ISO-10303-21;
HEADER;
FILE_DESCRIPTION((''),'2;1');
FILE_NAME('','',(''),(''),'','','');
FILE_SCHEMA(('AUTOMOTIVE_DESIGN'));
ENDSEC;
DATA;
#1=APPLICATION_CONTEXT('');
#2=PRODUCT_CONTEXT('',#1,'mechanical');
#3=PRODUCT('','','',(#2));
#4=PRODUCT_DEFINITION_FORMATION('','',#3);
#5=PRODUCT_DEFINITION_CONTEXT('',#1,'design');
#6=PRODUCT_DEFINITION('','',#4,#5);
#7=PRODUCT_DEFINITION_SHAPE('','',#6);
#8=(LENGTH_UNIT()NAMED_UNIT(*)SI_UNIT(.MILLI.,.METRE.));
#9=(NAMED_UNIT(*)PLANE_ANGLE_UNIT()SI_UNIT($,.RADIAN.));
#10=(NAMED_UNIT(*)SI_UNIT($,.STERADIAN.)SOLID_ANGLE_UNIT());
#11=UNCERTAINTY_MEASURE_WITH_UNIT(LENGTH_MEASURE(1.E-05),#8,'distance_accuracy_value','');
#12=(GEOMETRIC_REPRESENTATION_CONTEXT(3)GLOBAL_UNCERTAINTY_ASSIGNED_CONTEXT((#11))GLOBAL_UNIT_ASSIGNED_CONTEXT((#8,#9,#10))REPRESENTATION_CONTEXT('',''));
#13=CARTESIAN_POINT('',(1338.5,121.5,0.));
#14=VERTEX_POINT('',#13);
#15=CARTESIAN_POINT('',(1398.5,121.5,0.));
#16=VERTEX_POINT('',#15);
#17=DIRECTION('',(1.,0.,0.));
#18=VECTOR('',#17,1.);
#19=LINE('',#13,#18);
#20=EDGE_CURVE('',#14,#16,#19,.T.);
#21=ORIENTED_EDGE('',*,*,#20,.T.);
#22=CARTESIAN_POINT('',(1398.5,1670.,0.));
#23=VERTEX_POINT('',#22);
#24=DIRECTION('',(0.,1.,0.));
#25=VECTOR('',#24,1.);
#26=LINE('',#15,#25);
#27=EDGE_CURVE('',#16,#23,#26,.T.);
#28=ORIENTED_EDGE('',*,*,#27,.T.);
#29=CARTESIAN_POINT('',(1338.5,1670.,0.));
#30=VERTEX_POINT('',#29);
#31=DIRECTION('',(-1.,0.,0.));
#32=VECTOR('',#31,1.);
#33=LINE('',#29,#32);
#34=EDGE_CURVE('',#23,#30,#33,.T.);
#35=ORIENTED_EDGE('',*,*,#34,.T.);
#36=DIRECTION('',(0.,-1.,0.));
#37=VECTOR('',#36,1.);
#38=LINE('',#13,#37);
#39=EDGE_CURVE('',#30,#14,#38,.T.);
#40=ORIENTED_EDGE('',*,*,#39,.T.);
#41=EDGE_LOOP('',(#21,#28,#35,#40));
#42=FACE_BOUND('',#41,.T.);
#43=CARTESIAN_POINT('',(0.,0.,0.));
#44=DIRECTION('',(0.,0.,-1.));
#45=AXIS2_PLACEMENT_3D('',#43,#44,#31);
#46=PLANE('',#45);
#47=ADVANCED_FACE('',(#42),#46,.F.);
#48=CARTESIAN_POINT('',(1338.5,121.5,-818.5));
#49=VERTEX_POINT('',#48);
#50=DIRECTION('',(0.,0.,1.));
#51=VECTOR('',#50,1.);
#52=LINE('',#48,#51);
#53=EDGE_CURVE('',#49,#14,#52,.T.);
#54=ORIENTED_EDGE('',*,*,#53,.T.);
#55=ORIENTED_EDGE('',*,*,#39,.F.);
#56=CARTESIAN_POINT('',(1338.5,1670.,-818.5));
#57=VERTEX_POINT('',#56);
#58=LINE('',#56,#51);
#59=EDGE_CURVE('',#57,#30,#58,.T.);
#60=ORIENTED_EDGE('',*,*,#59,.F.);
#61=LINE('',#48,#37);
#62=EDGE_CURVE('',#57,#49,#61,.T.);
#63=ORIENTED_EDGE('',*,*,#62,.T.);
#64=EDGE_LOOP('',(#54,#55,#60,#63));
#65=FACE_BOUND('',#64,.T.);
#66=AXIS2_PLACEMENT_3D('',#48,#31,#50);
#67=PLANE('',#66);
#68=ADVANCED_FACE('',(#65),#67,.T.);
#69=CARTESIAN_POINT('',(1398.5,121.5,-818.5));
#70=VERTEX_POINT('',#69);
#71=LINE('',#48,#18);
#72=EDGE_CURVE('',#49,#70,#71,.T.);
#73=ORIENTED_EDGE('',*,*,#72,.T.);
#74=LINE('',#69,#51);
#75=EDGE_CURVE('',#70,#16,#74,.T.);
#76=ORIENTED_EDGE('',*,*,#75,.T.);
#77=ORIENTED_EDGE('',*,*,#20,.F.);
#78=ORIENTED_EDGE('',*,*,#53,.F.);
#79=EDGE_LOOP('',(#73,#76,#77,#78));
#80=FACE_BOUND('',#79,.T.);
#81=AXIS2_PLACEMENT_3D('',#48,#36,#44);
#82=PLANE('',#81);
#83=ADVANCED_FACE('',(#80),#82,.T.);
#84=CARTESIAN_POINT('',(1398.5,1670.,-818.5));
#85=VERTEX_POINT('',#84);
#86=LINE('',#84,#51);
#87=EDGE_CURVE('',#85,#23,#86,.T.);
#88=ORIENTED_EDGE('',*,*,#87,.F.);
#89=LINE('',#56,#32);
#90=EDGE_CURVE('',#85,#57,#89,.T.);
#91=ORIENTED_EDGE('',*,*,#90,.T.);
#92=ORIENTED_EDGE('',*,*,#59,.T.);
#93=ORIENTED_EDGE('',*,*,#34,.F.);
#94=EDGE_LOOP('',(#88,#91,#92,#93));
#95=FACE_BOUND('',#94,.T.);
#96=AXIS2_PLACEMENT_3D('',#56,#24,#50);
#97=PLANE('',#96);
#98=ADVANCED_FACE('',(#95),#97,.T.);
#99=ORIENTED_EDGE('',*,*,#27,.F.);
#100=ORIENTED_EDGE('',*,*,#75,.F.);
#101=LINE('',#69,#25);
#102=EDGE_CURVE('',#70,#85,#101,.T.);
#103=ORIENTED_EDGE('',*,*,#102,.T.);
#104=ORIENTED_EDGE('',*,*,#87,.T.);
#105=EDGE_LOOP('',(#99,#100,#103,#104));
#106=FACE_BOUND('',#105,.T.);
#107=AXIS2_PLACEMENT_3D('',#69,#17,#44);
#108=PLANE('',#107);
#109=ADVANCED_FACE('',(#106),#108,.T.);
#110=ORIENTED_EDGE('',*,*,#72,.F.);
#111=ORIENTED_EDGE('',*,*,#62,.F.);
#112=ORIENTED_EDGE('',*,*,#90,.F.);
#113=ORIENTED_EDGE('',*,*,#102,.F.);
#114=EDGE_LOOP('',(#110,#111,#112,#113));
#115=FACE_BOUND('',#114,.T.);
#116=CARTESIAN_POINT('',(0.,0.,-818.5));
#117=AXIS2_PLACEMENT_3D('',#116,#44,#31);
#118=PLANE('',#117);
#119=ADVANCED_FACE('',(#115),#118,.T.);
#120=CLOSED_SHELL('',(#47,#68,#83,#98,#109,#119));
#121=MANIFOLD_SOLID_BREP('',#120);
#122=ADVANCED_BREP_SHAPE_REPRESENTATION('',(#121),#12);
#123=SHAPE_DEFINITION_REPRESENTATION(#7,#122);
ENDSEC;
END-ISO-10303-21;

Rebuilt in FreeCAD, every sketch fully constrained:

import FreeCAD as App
import Part
import Sketcher
Q = App.Units.Quantity


def add_polygon(sketch, points):
    """Adds a closed chain of lines whose ends are joined by coincident constraints."""
    first, n = sketch.GeometryCount, len(points)
    for a, b in zip(points, points[1:] + points[:1]):
        sketch.addGeometry(Part.LineSegment(App.Vector(*a, 0), App.Vector(*b, 0)), False)
    for i in range(n):
        sketch.addConstraint(Sketcher.Constraint("Coincident", first + i, 2, first + (i + 1) % n, 1))

doc = App.newDocument("Part")
body = doc.addObject("PartDesign::Body", "Body")

# Sketch on XY plane
sketch1 = body.newObject("Sketcher::SketchObject", "Sketch")
sketch1.AttachmentSupport = (doc.getObject("XY_Plane"), [""])
sketch1.MapMode = "FlatFace"
add_polygon(sketch1, [(1338, 1670), (1338, 122), (1398, 122), (1398, 1670)])  # lines 0-3
sketch1.addConstraint([
    Sketcher.Constraint("Vertical", 0),
    Sketcher.Constraint("Horizontal", 1),
    Sketcher.Constraint("Vertical", 2),
    Sketcher.Constraint("Horizontal", 3),
    Sketcher.Constraint("DistanceX", 1, 1, 1, 2, Q("60 mm")),
    Sketcher.Constraint("DistanceY", 0, 2, 0, 1, Q("1548.5 mm")),
    Sketcher.Constraint("DistanceY", -1, 1, 2, 2, Q("1670 mm")),
    Sketcher.Constraint("DistanceX", -1, 1, 0, 2, Q("1338.5 mm")),
])
pad1 = body.newObject("PartDesign::Pad", "Pad")
pad1.Profile = sketch1
pad1.Length = 818.5
pad1.Reversed = True

doc.recompute()
